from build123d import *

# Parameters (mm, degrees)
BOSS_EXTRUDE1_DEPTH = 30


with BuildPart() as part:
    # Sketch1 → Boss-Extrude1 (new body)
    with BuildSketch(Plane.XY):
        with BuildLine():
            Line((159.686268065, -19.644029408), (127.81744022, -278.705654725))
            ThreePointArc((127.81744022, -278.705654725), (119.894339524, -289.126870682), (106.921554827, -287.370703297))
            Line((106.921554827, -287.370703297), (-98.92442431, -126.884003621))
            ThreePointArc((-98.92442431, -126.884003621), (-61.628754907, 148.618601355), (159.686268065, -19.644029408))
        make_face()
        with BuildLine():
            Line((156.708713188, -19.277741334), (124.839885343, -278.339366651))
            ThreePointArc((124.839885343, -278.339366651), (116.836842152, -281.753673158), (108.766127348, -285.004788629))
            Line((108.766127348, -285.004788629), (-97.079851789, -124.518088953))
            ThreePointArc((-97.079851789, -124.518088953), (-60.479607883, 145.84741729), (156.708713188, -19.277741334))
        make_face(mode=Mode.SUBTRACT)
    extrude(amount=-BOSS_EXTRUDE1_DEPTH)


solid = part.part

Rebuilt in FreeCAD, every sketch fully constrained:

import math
import FreeCAD as App
import Part
import Sketcher

doc = App.newDocument("Part")
body = doc.addObject("PartDesign::Body", "Body")

# Sketch on XY plane
sketch1 = body.newObject("Sketcher::SketchObject", "Sketch")
sketch1.AttachmentSupport = (doc.getObject("XY_Plane"), [""])
sketch1.MapMode = "FlatFace"
sketch1.addGeometry([
    Part.LineSegment(App.Vector(127.81744, -278.705655, 0), App.Vector(159.686268, -19.644029, 0)),  # 0
    Part.ArcOfCircle(Part.Circle(App.Vector(0, 0, 0), App.Vector(0, 0, 1), 160.89), math.radians(-7.013086), math.radians(232.058433)),  # 1
    Part.LineSegment(App.Vector(-98.924424, -126.884004, 0), App.Vector(106.921555, -287.370703, 0)),  # 2
    Part.ArcOfCircle(Part.Circle(App.Vector(114.914702, -277.118406, 0), App.Vector(0, 0, 1), 13), math.radians(-127.941567), math.radians(-7.013086)),  # 3
    Part.LineSegment(App.Vector(156.708713, -19.277741, 0), App.Vector(124.839885, -278.339367, 0)),  # 4
    Part.ArcOfCircle(Part.Circle(App.Vector(-47.310383, 114.089648, 0), App.Vector(0, 0, 1), 428.528), math.radians(-68.640693), math.radians(-66.31396)),  # 5
    Part.LineSegment(App.Vector(108.766127, -285.004789, 0), App.Vector(-97.079852, -124.518089, 0)),  # 6
    Part.ArcOfCircle(Part.Circle(App.Vector(0, 0, 0), App.Vector(0, 0, 1), 157.89), math.radians(-7.013086), math.radians(232.058433)),  # 7
], False)
sketch1.addConstraint([
    Sketcher.Constraint("Tangent", 0, 2, 1, 1),
    Sketcher.Constraint("Tangent", 1, 2, 2, 1),
    Sketcher.Constraint("Tangent", 2, 2, 3, 1),
    Sketcher.Constraint("Tangent", 3, 2, 0, 1),
    Sketcher.Constraint("Coincident", 4, 2, 5, 2),
    Sketcher.Constraint("Coincident", 5, 1, 6, 1),
    Sketcher.Constraint("Tangent", 6, 2, 7, 2),
    Sketcher.Constraint("Tangent", 7, 1, 4, 1),
    Sketcher.Constraint("Coincident", 1, 3, -1, 1),
    Sketcher.Constraint("Coincident", 7, 3, -1, 1),
    Sketcher.Constraint("Parallel", 0, 4),
    Sketcher.Constraint("Parallel", 2, 6),
    Sketcher.Constraint("Equal", 2, 4),
    Sketcher.Constraint("Equal", 4, 6),
    Sketcher.Constraint("Radius", 3, 13.0),
    Sketcher.Constraint("Radius", 1, 160.89),
    Sketcher.Constraint("Radius", 7, 157.89),
    Sketcher.Constraint("Radius", 5, 428.528),
    Sketcher.Constraint("DistanceY", 2, 2, 1, 2, 160.4867),
    Sketcher.Constraint("Distance", 0, 261.014459),
])
pad1 = body.newObject("PartDesign::Pad", "Pad")
pad1.Profile = sketch1
pad1.Length = 30
pad1.Reversed = True

doc.recompute()
